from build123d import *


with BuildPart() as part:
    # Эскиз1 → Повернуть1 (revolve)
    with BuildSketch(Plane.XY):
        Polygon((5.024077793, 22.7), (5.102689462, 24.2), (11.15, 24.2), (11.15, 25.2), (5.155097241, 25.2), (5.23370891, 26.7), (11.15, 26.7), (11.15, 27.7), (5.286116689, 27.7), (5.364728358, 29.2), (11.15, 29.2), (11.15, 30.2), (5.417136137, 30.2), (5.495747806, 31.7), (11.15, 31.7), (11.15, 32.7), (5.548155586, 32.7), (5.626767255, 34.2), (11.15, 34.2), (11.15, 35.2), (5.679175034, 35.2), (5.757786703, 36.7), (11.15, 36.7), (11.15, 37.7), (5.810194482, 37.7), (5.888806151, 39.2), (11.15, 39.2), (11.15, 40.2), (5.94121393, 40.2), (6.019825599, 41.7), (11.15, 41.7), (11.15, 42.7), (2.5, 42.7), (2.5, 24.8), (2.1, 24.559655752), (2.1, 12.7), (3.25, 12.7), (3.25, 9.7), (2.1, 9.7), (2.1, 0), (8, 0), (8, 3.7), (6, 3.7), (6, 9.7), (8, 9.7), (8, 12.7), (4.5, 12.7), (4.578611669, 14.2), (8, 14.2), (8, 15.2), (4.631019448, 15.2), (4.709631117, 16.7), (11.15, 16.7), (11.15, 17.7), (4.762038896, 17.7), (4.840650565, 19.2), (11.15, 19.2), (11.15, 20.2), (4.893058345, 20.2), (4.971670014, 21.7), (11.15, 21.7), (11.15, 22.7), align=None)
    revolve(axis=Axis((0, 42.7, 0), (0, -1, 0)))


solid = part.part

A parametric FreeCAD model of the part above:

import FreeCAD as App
import Part
import Sketcher
from FreeCAD import Vector
Q = App.Units.Quantity

doc = App.newDocument("Part")
body = doc.addObject("PartDesign::Body", "Body")

# Sketch on XY plane
sketch1 = body.newObject("Sketcher::SketchObject", "Sketch")
sketch1.AttachmentSupport = (doc.getObject("XY_Plane"), [""])
sketch1.MapMode = "FlatFace"
sketch1.addGeometry([
    Part.LineSegment(Vector(5.02, 22.7, 0), Vector(5.1, 24.2, 0)),  # 0
    Part.LineSegment(Vector(5.1, 24.2, 0), Vector(11.15, 24.2, 0)),  # 1
    Part.LineSegment(Vector(11.15, 24.2, 0), Vector(11.15, 25.2, 0)),  # 2
    Part.LineSegment(Vector(11.15, 25.2, 0), Vector(5.16, 25.2, 0)),  # 3
    Part.LineSegment(Vector(5.16, 25.2, 0), Vector(5.23, 26.7, 0)),  # 4
    Part.LineSegment(Vector(5.23, 26.7, 0), Vector(11.15, 26.7, 0)),  # 5
    Part.LineSegment(Vector(11.15, 26.7, 0), Vector(11.15, 27.7, 0)),  # 6
    Part.LineSegment(Vector(11.15, 27.7, 0), Vector(5.29, 27.7, 0)),  # 7
    Part.LineSegment(Vector(5.29, 27.7, 0), Vector(5.36, 29.2, 0)),  # 8
    Part.LineSegment(Vector(5.36, 29.2, 0), Vector(11.15, 29.2, 0)),  # 9
    Part.LineSegment(Vector(11.15, 29.2, 0), Vector(11.15, 30.2, 0)),  # 10
    Part.LineSegment(Vector(11.15, 30.2, 0), Vector(5.42, 30.2, 0)),  # 11
    Part.LineSegment(Vector(5.42, 30.2, 0), Vector(5.5, 31.7, 0)),  # 12
    Part.LineSegment(Vector(5.5, 31.7, 0), Vector(11.15, 31.7, 0)),  # 13
    Part.LineSegment(Vector(11.15, 31.7, 0), Vector(11.15, 32.7, 0)),  # 14
    Part.LineSegment(Vector(11.15, 32.7, 0), Vector(5.55, 32.7, 0)),  # 15
    Part.LineSegment(Vector(5.55, 32.7, 0), Vector(5.63, 34.2, 0)),  # 16
    Part.LineSegment(Vector(5.63, 34.2, 0), Vector(11.15, 34.2, 0)),  # 17
    Part.LineSegment(Vector(11.15, 34.2, 0), Vector(11.15, 35.2, 0)),  # 18
    Part.LineSegment(Vector(11.15, 35.2, 0), Vector(5.68, 35.2, 0)),  # 19
    Part.LineSegment(Vector(5.68, 35.2, 0), Vector(5.76, 36.7, 0)),  # 20
    Part.LineSegment(Vector(5.76, 36.7, 0), Vector(11.15, 36.7, 0)),  # 21
    Part.LineSegment(Vector(11.15, 36.7, 0), Vector(11.15, 37.7, 0)),  # 22
    Part.LineSegment(Vector(11.15, 37.7, 0), Vector(5.81, 37.7, 0)),  # 23
    Part.LineSegment(Vector(5.81, 37.7, 0), Vector(5.89, 39.2, 0)),  # 24
    Part.LineSegment(Vector(5.89, 39.2, 0), Vector(11.15, 39.2, 0)),  # 25
    Part.LineSegment(Vector(11.15, 39.2, 0), Vector(11.15, 40.2, 0)),  # 26
    Part.LineSegment(Vector(11.15, 40.2, 0), Vector(5.94, 40.2, 0)),  # 27
    Part.LineSegment(Vector(5.94, 40.2, 0), Vector(6.02, 41.7, 0)),  # 28
    Part.LineSegment(Vector(6.02, 41.7, 0), Vector(11.15, 41.7, 0)),  # 29
    Part.LineSegment(Vector(11.15, 41.7, 0), Vector(11.15, 42.7, 0)),  # 30
    Part.LineSegment(Vector(11.15, 42.7, 0), Vector(2.5, 42.7, 0)),  # 31
    Part.LineSegment(Vector(2.5, 42.7, 0), Vector(2.5, 24.8, 0)),  # 32
    Part.LineSegment(Vector(2.5, 24.8, 0), Vector(2.1, 24.56, 0)),  # 33
    Part.LineSegment(Vector(2.1, 24.56, 0), Vector(2.1, 12.7, 0)),  # 34
    Part.LineSegment(Vector(2.1, 12.7, 0), Vector(3.25, 12.7, 0)),  # 35
    Part.LineSegment(Vector(3.25, 12.7, 0), Vector(3.25, 9.7, 0)),  # 36
    Part.LineSegment(Vector(3.25, 9.7, 0), Vector(2.1, 9.7, 0)),  # 37
    Part.LineSegment(Vector(2.1, 9.7, 0), Vector(2.1, 0, 0)),  # 38
    Part.LineSegment(Vector(2.1, 0, 0), Vector(8, 0, 0)),  # 39
    Part.LineSegment(Vector(8, 0, 0), Vector(8, 3.7, 0)),  # 40
    Part.LineSegment(Vector(8, 3.7, 0), Vector(6, 3.7, 0)),  # 41
    Part.LineSegment(Vector(6, 3.7, 0), Vector(6, 9.7, 0)),  # 42
    Part.LineSegment(Vector(6, 9.7, 0), Vector(8, 9.7, 0)),  # 43
    Part.LineSegment(Vector(8, 9.7, 0), Vector(8, 12.7, 0)),  # 44
    Part.LineSegment(Vector(8, 12.7, 0), Vector(4.5, 12.7, 0)),  # 45
    Part.LineSegment(Vector(4.5, 12.7, 0), Vector(4.58, 14.2, 0)),  # 46
    Part.LineSegment(Vector(4.58, 14.2, 0), Vector(8, 14.2, 0)),  # 47
    Part.LineSegment(Vector(8, 14.2, 0), Vector(8, 15.2, 0)),  # 48
    Part.LineSegment(Vector(8, 15.2, 0), Vector(4.63, 15.2, 0)),  # 49
    Part.LineSegment(Vector(4.63, 15.2, 0), Vector(4.71, 16.7, 0)),  # 50
    Part.LineSegment(Vector(4.71, 16.7, 0), Vector(11.15, 16.7, 0)),  # 51
    Part.LineSegment(Vector(11.15, 16.7, 0), Vector(11.15, 17.7, 0)),  # 52
    Part.LineSegment(Vector(11.15, 17.7, 0), Vector(4.76, 17.7, 0)),  # 53
    Part.LineSegment(Vector(4.76, 17.7, 0), Vector(4.84, 19.2, 0)),  # 54
    Part.LineSegment(Vector(4.84, 19.2, 0), Vector(11.15, 19.2, 0)),  # 55
    Part.LineSegment(Vector(11.15, 19.2, 0), Vector(11.15, 20.2, 0)),  # 56
    Part.LineSegment(Vector(11.15, 20.2, 0), Vector(4.89, 20.2, 0)),  # 57
    Part.LineSegment(Vector(4.89, 20.2, 0), Vector(4.97, 21.7, 0)),  # 58
    Part.LineSegment(Vector(4.97, 21.7, 0), Vector(11.15, 21.7, 0)),  # 59
    Part.LineSegment(Vector(11.15, 21.7, 0), Vector(11.15, 22.7, 0)),  # 60
    Part.LineSegment(Vector(11.15, 22.7, 0), Vector(5.02, 22.7, 0)),  # 61
], False)
sketch1.addConstraint([
    Sketcher.Constraint("Coincident", 0, 2, 1, 1),
    Sketcher.Constraint("Coincident", 1, 2, 2, 1),
    Sketcher.Constraint("Coincident", 2, 2, 3, 1),
    Sketcher.Constraint("Coincident", 3, 2, 4, 1),
    Sketcher.Constraint("Coincident", 4, 2, 5, 1),
    Sketcher.Constraint("Coincident", 5, 2, 6, 1),
    Sketcher.Constraint("Coincident", 6, 2, 7, 1),
    Sketcher.Constraint("Coincident", 7, 2, 8, 1),
    Sketcher.Constraint("Coincident", 8, 2, 9, 1),
    Sketcher.Constraint("Coincident", 9, 2, 10, 1),
    Sketcher.Constraint("Coincident", 10, 2, 11, 1),
    Sketcher.Constraint("Coincident", 11, 2, 12, 1),
    Sketcher.Constraint("Coincident", 12, 2, 13, 1),
    Sketcher.Constraint("Coincident", 13, 2, 14, 1),
    Sketcher.Constraint("Coincident", 14, 2, 15, 1),
    Sketcher.Constraint("Coincident", 15, 2, 16, 1),
    Sketcher.Constraint("Coincident", 16, 2, 17, 1),
    Sketcher.Constraint("Coincident", 17, 2, 18, 1),
    Sketcher.Constraint("Coincident", 18, 2, 19, 1),
    Sketcher.Constraint("Coincident", 19, 2, 20, 1),
    Sketcher.Constraint("Coincident", 20, 2, 21, 1),
    Sketcher.Constraint("Coincident", 21, 2, 22, 1),
    Sketcher.Constraint("Coincident", 22, 2, 23, 1),
    Sketcher.Constraint("Coincident", 23, 2, 24, 1),
    Sketcher.Constraint("Coincident", 24, 2, 25, 1),
    Sketcher.Constraint("Coincident", 25, 2, 26, 1),
    Sketcher.Constraint("Coincident", 26, 2, 27, 1),
    Sketcher.Constraint("Coincident", 27, 2, 28, 1),
    Sketcher.Constraint("Coincident", 28, 2, 29, 1),
    Sketcher.Constraint("Coincident", 29, 2, 30, 1),
    Sketcher.Constraint("Coincident", 30, 2, 31, 1),
    Sketcher.Constraint("Coincident", 31, 2, 32, 1),
    Sketcher.Constraint("Coincident", 32, 2, 33, 1),
    Sketcher.Constraint("Coincident", 33, 2, 34, 1),
    Sketcher.Constraint("Coincident", 34, 2, 35, 1),
    Sketcher.Constraint("Coincident", 35, 2, 36, 1),
    Sketcher.Constraint("Coincident", 36, 2, 37, 1),
    Sketcher.Constraint("Coincident", 37, 2, 38, 1),
    Sketcher.Constraint("Coincident", 38, 2, 39, 1),
    Sketcher.Constraint("Coincident", 39, 2, 40, 1),
    Sketcher.Constraint("Coincident", 40, 2, 41, 1),
    Sketcher.Constraint("Coincident", 41, 2, 42, 1),
    Sketcher.Constraint("Coincident", 42, 2, 43, 1),
    Sketcher.Constraint("Coincident", 43, 2, 44, 1),
    Sketcher.Constraint("Coincident", 44, 2, 45, 1),
    Sketcher.Constraint("Coincident", 45, 2, 46, 1),
    Sketcher.Constraint("Coincident", 46, 2, 47, 1),
    Sketcher.Constraint("Coincident", 47, 2, 48, 1),
    Sketcher.Constraint("Coincident", 48, 2, 49, 1),
    Sketcher.Constraint("Coincident", 49, 2, 50, 1),
    Sketcher.Constraint("Coincident", 50, 2, 51, 1),
    Sketcher.Constraint("Coincident", 51, 2, 52, 1),
    Sketcher.Constraint("Coincident", 52, 2, 53, 1),
    Sketcher.Constraint("Coincident", 53, 2, 54, 1),
    Sketcher.Constraint("Coincident", 54, 2, 55, 1),
    Sketcher.Constraint("Coincident", 55, 2, 56, 1),
    Sketcher.Constraint("Coincident", 56, 2, 57, 1),
    Sketcher.Constraint("Coincident", 57, 2, 58, 1),
    Sketcher.Constraint("Coincident", 58, 2, 59, 1),
    Sketcher.Constraint("Coincident", 59, 2, 60, 1),
    Sketcher.Constraint("Coincident", 60, 2, 61, 1),
    Sketcher.Constraint("Coincident", 61, 2, 0, 1),
    Sketcher.Constraint("Horizontal", 1),
    Sketcher.Constraint("Vertical", 2),
    Sketcher.Constraint("Horizontal", 3),
    Sketcher.Constraint("Horizontal", 5),
    Sketcher.Constraint("Vertical", 6),
    Sketcher.Constraint("Horizontal", 7),
    Sketcher.Constraint("Horizontal", 9),
    Sketcher.Constraint("Vertical", 10),
    Sketcher.Constraint("Horizontal", 11),
    Sketcher.Constraint("Horizontal", 13),
    Sketcher.Constraint("Vertical", 14),
    Sketcher.Constraint("Horizontal", 15),
    Sketcher.Constraint("Horizontal", 17),
    Sketcher.Constraint("Vertical", 18),
    Sketcher.Constraint("Horizontal", 19),
    Sketcher.Constraint("Horizontal", 21),
    Sketcher.Constraint("Vertical", 22),
    Sketcher.Constraint("Horizontal", 23),
    Sketcher.Constraint("Horizontal", 25),
    Sketcher.Constraint("Vertical", 26),
    Sketcher.Constraint("Horizontal", 27),
    Sketcher.Constraint("Horizontal", 29),
    Sketcher.Constraint("Vertical", 30),
    Sketcher.Constraint("Horizontal", 31),
    Sketcher.Constraint("Vertical", 32),
    Sketcher.Constraint("Vertical", 34),
    Sketcher.Constraint("Horizontal", 35),
    Sketcher.Constraint("Vertical", 36),
    Sketcher.Constraint("Horizontal", 37),
    Sketcher.Constraint("Vertical", 38),
    Sketcher.Constraint("Horizontal", 39),
    Sketcher.Constraint("Vertical", 40),
    Sketcher.Constraint("Horizontal", 41),
    Sketcher.Constraint("Vertical", 42),
    Sketcher.Constraint("Horizontal", 43),
    Sketcher.Constraint("Vertical", 44),
    Sketcher.Constraint("Horizontal", 45),
    Sketcher.Constraint("Horizontal", 47),
    Sketcher.Constraint("Vertical", 48),
    Sketcher.Constraint("Horizontal", 49),
    Sketcher.Constraint("Horizontal", 51),
    Sketcher.Constraint("Vertical", 52),
    Sketcher.Constraint("Horizontal", 53),
    Sketcher.Constraint("Horizontal", 55),
    Sketcher.Constraint("Vertical", 56),
    Sketcher.Constraint("Horizontal", 57),
    Sketcher.Constraint("Horizontal", 59),
    Sketcher.Constraint("Vertical", 60),
    Sketcher.Constraint("Horizontal", 61),
    Sketcher.Constraint("PointOnObject", 38, 2, -1),
    Sketcher.Constraint("Parallel", 0, 4),
    Sketcher.Constraint("Parallel", 4, 8),
    Sketcher.Constraint("Parallel", 8, 12),
    Sketcher.Constraint("Parallel", 12, 16),
    Sketcher.Constraint("Parallel", 16, 20),
    Sketcher.Constraint("Parallel", 20, 24),
    Sketcher.Constraint("Parallel", 24, 28),
    Sketcher.Constraint("Parallel", 28, 46),
    Sketcher.Constraint("Parallel", 46, 50),
    Sketcher.Constraint("Parallel", 50, 54),
    Sketcher.Constraint("Parallel", 54, 58),
    Sketcher.Constraint("Horizontal", 37, 2, 42, 2),
    Sketcher.Constraint("Horizontal", 35, 2, 44, 2),
    Sketcher.Constraint("Vertical", 2, 2, 5, 2),
    Sketcher.Constraint("Vertical", 6, 2, 9, 2),
    Sketcher.Constraint("Vertical", 10, 2, 13, 2),
    Sketcher.Constraint("Vertical", 14, 2, 17, 2),
    Sketcher.Constraint("Vertical", 18, 2, 21, 2),
    Sketcher.Constraint("Vertical", 22, 2, 25, 2),
    Sketcher.Constraint("Vertical", 26, 2, 29, 2),
    Sketcher.Constraint("Vertical", 34, 2, 37, 2),
    Sketcher.Constraint("Vertical", 40, 2, 43, 2),
    Sketcher.Constraint("Vertical", 44, 2, 47, 2),
    Sketcher.Constraint("Vertical", 30, 2, 51, 2),
    Sketcher.Constraint("Vertical", 52, 2, 55, 2),
    Sketcher.Constraint("Vertical", 56, 2, 59, 2),
    Sketcher.Constraint("Equal", 2, 6),
    Sketcher.Constraint("Equal", 6, 10),
    Sketcher.Constraint("Equal", 10, 14),
    Sketcher.Constraint("Equal", 14, 18),
    Sketcher.Constraint("Equal", 18, 22),
    Sketcher.Constraint("Equal", 22, 26),
    Sketcher.Constraint("Equal", 26, 30),
    Sketcher.Constraint("Equal", 30, 48),
    Sketcher.Constraint("Equal", 48, 52),
    Sketcher.Constraint("Equal", 52, 56),
    Sketcher.Constraint("Equal", 56, 60),
    Sketcher.Constraint("Equal", 0, 4),
    Sketcher.Constraint("Equal", 4, 8),
    Sketcher.Constraint("Equal", 8, 12),
    Sketcher.Constraint("Equal", 12, 16),
    Sketcher.Constraint("Equal", 16, 20),
    Sketcher.Constraint("Equal", 20, 24),
    Sketcher.Constraint("Equal", 24, 28),
    Sketcher.Constraint("Equal", 28, 46),
    Sketcher.Constraint("Equal", 46, 50),
    Sketcher.Constraint("Equal", 50, 54),
    Sketcher.Constraint("Equal", 54, 58),
    Sketcher.Constraint("DistanceX", 41, 2, 41, 1, Q("2 mm")),
    Sketcher.Constraint("DistanceY", 2, 1, 2, 2, Q("1 mm")),
    Sketcher.Constraint("DistanceY", 36, 2, 36, 1, Q("3 mm")),
    Sketcher.Constraint("DistanceY", 42, 1, 42, 2, Q("6 mm")),
    Sketcher.Constraint("Angle", 0, Q("87 deg")),
    Sketcher.Constraint("Angle", 33, Q("-149 deg")),
    Sketcher.Constraint("DistanceX", 39, 1, 39, 2, Q("5.9 mm")),
    Sketcher.Constraint("DistanceX", 45, 2, 45, 1, Q("3.5 mm")),
    Sketcher.Constraint("DistanceY", 32, 2, 32, 1, Q("17.9 mm")),
    Sketcher.Constraint("DistanceY", 38, 2, 38, 1, Q("9.7 mm")),
    Sketcher.Constraint("DistanceX", -1, 1, 39, 2, Q("8 mm")),
    Sketcher.Constraint("DistanceX", 31, 2, 31, 1, Q("8.65 mm")),
    Sketcher.Constraint("DistanceX", 35, 1, 35, 2, Q("1.15 mm")),
    Sketcher.Constraint("DistanceY", -1, 1, 0, 2, Q("24.2 mm")),
    Sketcher.Constraint("DistanceX", -1, 1, 31, 2, Q("2.5 mm")),
    Sketcher.Constraint("DistanceX", 1, 1, 1, 2, Q("6.047311 mm")),
    Sketcher.Constraint("DistanceX", 5, 1, 5, 2, Q("5.916291 mm")),
    Sketcher.Constraint("DistanceX", 9, 1, 9, 2, Q("5.785272 mm")),
    Sketcher.Constraint("DistanceX", 49, 2, 49, 1, Q("3.368981 mm")),
    Sketcher.Constraint("DistanceX", 53, 2, 53, 1, Q("6.387961 mm")),
    Sketcher.Constraint("DistanceX", 57, 2, 57, 1, Q("6.256942 mm")),
    Sketcher.Constraint("DistanceX", 11, 2, 11, 1, Q("5.732864 mm")),
    Sketcher.Constraint("DistanceX", 15, 2, 15, 1, Q("5.601844 mm")),
    Sketcher.Constraint("DistanceX", 19, 2, 19, 1, Q("5.470825 mm")),
    Sketcher.Constraint("DistanceX", 23, 2, 23, 1, Q("5.339806 mm")),
    Sketcher.Constraint("DistanceX", 27, 2, 27, 1, Q("5.208786 mm")),
])
revolution = body.newObject("PartDesign::Revolution", "Revolution")
revolution.Profile = sketch1
revolution.ReferenceAxis = (sketch1, ["V_Axis"])
revolution.Angle = 360

doc.recompute()
